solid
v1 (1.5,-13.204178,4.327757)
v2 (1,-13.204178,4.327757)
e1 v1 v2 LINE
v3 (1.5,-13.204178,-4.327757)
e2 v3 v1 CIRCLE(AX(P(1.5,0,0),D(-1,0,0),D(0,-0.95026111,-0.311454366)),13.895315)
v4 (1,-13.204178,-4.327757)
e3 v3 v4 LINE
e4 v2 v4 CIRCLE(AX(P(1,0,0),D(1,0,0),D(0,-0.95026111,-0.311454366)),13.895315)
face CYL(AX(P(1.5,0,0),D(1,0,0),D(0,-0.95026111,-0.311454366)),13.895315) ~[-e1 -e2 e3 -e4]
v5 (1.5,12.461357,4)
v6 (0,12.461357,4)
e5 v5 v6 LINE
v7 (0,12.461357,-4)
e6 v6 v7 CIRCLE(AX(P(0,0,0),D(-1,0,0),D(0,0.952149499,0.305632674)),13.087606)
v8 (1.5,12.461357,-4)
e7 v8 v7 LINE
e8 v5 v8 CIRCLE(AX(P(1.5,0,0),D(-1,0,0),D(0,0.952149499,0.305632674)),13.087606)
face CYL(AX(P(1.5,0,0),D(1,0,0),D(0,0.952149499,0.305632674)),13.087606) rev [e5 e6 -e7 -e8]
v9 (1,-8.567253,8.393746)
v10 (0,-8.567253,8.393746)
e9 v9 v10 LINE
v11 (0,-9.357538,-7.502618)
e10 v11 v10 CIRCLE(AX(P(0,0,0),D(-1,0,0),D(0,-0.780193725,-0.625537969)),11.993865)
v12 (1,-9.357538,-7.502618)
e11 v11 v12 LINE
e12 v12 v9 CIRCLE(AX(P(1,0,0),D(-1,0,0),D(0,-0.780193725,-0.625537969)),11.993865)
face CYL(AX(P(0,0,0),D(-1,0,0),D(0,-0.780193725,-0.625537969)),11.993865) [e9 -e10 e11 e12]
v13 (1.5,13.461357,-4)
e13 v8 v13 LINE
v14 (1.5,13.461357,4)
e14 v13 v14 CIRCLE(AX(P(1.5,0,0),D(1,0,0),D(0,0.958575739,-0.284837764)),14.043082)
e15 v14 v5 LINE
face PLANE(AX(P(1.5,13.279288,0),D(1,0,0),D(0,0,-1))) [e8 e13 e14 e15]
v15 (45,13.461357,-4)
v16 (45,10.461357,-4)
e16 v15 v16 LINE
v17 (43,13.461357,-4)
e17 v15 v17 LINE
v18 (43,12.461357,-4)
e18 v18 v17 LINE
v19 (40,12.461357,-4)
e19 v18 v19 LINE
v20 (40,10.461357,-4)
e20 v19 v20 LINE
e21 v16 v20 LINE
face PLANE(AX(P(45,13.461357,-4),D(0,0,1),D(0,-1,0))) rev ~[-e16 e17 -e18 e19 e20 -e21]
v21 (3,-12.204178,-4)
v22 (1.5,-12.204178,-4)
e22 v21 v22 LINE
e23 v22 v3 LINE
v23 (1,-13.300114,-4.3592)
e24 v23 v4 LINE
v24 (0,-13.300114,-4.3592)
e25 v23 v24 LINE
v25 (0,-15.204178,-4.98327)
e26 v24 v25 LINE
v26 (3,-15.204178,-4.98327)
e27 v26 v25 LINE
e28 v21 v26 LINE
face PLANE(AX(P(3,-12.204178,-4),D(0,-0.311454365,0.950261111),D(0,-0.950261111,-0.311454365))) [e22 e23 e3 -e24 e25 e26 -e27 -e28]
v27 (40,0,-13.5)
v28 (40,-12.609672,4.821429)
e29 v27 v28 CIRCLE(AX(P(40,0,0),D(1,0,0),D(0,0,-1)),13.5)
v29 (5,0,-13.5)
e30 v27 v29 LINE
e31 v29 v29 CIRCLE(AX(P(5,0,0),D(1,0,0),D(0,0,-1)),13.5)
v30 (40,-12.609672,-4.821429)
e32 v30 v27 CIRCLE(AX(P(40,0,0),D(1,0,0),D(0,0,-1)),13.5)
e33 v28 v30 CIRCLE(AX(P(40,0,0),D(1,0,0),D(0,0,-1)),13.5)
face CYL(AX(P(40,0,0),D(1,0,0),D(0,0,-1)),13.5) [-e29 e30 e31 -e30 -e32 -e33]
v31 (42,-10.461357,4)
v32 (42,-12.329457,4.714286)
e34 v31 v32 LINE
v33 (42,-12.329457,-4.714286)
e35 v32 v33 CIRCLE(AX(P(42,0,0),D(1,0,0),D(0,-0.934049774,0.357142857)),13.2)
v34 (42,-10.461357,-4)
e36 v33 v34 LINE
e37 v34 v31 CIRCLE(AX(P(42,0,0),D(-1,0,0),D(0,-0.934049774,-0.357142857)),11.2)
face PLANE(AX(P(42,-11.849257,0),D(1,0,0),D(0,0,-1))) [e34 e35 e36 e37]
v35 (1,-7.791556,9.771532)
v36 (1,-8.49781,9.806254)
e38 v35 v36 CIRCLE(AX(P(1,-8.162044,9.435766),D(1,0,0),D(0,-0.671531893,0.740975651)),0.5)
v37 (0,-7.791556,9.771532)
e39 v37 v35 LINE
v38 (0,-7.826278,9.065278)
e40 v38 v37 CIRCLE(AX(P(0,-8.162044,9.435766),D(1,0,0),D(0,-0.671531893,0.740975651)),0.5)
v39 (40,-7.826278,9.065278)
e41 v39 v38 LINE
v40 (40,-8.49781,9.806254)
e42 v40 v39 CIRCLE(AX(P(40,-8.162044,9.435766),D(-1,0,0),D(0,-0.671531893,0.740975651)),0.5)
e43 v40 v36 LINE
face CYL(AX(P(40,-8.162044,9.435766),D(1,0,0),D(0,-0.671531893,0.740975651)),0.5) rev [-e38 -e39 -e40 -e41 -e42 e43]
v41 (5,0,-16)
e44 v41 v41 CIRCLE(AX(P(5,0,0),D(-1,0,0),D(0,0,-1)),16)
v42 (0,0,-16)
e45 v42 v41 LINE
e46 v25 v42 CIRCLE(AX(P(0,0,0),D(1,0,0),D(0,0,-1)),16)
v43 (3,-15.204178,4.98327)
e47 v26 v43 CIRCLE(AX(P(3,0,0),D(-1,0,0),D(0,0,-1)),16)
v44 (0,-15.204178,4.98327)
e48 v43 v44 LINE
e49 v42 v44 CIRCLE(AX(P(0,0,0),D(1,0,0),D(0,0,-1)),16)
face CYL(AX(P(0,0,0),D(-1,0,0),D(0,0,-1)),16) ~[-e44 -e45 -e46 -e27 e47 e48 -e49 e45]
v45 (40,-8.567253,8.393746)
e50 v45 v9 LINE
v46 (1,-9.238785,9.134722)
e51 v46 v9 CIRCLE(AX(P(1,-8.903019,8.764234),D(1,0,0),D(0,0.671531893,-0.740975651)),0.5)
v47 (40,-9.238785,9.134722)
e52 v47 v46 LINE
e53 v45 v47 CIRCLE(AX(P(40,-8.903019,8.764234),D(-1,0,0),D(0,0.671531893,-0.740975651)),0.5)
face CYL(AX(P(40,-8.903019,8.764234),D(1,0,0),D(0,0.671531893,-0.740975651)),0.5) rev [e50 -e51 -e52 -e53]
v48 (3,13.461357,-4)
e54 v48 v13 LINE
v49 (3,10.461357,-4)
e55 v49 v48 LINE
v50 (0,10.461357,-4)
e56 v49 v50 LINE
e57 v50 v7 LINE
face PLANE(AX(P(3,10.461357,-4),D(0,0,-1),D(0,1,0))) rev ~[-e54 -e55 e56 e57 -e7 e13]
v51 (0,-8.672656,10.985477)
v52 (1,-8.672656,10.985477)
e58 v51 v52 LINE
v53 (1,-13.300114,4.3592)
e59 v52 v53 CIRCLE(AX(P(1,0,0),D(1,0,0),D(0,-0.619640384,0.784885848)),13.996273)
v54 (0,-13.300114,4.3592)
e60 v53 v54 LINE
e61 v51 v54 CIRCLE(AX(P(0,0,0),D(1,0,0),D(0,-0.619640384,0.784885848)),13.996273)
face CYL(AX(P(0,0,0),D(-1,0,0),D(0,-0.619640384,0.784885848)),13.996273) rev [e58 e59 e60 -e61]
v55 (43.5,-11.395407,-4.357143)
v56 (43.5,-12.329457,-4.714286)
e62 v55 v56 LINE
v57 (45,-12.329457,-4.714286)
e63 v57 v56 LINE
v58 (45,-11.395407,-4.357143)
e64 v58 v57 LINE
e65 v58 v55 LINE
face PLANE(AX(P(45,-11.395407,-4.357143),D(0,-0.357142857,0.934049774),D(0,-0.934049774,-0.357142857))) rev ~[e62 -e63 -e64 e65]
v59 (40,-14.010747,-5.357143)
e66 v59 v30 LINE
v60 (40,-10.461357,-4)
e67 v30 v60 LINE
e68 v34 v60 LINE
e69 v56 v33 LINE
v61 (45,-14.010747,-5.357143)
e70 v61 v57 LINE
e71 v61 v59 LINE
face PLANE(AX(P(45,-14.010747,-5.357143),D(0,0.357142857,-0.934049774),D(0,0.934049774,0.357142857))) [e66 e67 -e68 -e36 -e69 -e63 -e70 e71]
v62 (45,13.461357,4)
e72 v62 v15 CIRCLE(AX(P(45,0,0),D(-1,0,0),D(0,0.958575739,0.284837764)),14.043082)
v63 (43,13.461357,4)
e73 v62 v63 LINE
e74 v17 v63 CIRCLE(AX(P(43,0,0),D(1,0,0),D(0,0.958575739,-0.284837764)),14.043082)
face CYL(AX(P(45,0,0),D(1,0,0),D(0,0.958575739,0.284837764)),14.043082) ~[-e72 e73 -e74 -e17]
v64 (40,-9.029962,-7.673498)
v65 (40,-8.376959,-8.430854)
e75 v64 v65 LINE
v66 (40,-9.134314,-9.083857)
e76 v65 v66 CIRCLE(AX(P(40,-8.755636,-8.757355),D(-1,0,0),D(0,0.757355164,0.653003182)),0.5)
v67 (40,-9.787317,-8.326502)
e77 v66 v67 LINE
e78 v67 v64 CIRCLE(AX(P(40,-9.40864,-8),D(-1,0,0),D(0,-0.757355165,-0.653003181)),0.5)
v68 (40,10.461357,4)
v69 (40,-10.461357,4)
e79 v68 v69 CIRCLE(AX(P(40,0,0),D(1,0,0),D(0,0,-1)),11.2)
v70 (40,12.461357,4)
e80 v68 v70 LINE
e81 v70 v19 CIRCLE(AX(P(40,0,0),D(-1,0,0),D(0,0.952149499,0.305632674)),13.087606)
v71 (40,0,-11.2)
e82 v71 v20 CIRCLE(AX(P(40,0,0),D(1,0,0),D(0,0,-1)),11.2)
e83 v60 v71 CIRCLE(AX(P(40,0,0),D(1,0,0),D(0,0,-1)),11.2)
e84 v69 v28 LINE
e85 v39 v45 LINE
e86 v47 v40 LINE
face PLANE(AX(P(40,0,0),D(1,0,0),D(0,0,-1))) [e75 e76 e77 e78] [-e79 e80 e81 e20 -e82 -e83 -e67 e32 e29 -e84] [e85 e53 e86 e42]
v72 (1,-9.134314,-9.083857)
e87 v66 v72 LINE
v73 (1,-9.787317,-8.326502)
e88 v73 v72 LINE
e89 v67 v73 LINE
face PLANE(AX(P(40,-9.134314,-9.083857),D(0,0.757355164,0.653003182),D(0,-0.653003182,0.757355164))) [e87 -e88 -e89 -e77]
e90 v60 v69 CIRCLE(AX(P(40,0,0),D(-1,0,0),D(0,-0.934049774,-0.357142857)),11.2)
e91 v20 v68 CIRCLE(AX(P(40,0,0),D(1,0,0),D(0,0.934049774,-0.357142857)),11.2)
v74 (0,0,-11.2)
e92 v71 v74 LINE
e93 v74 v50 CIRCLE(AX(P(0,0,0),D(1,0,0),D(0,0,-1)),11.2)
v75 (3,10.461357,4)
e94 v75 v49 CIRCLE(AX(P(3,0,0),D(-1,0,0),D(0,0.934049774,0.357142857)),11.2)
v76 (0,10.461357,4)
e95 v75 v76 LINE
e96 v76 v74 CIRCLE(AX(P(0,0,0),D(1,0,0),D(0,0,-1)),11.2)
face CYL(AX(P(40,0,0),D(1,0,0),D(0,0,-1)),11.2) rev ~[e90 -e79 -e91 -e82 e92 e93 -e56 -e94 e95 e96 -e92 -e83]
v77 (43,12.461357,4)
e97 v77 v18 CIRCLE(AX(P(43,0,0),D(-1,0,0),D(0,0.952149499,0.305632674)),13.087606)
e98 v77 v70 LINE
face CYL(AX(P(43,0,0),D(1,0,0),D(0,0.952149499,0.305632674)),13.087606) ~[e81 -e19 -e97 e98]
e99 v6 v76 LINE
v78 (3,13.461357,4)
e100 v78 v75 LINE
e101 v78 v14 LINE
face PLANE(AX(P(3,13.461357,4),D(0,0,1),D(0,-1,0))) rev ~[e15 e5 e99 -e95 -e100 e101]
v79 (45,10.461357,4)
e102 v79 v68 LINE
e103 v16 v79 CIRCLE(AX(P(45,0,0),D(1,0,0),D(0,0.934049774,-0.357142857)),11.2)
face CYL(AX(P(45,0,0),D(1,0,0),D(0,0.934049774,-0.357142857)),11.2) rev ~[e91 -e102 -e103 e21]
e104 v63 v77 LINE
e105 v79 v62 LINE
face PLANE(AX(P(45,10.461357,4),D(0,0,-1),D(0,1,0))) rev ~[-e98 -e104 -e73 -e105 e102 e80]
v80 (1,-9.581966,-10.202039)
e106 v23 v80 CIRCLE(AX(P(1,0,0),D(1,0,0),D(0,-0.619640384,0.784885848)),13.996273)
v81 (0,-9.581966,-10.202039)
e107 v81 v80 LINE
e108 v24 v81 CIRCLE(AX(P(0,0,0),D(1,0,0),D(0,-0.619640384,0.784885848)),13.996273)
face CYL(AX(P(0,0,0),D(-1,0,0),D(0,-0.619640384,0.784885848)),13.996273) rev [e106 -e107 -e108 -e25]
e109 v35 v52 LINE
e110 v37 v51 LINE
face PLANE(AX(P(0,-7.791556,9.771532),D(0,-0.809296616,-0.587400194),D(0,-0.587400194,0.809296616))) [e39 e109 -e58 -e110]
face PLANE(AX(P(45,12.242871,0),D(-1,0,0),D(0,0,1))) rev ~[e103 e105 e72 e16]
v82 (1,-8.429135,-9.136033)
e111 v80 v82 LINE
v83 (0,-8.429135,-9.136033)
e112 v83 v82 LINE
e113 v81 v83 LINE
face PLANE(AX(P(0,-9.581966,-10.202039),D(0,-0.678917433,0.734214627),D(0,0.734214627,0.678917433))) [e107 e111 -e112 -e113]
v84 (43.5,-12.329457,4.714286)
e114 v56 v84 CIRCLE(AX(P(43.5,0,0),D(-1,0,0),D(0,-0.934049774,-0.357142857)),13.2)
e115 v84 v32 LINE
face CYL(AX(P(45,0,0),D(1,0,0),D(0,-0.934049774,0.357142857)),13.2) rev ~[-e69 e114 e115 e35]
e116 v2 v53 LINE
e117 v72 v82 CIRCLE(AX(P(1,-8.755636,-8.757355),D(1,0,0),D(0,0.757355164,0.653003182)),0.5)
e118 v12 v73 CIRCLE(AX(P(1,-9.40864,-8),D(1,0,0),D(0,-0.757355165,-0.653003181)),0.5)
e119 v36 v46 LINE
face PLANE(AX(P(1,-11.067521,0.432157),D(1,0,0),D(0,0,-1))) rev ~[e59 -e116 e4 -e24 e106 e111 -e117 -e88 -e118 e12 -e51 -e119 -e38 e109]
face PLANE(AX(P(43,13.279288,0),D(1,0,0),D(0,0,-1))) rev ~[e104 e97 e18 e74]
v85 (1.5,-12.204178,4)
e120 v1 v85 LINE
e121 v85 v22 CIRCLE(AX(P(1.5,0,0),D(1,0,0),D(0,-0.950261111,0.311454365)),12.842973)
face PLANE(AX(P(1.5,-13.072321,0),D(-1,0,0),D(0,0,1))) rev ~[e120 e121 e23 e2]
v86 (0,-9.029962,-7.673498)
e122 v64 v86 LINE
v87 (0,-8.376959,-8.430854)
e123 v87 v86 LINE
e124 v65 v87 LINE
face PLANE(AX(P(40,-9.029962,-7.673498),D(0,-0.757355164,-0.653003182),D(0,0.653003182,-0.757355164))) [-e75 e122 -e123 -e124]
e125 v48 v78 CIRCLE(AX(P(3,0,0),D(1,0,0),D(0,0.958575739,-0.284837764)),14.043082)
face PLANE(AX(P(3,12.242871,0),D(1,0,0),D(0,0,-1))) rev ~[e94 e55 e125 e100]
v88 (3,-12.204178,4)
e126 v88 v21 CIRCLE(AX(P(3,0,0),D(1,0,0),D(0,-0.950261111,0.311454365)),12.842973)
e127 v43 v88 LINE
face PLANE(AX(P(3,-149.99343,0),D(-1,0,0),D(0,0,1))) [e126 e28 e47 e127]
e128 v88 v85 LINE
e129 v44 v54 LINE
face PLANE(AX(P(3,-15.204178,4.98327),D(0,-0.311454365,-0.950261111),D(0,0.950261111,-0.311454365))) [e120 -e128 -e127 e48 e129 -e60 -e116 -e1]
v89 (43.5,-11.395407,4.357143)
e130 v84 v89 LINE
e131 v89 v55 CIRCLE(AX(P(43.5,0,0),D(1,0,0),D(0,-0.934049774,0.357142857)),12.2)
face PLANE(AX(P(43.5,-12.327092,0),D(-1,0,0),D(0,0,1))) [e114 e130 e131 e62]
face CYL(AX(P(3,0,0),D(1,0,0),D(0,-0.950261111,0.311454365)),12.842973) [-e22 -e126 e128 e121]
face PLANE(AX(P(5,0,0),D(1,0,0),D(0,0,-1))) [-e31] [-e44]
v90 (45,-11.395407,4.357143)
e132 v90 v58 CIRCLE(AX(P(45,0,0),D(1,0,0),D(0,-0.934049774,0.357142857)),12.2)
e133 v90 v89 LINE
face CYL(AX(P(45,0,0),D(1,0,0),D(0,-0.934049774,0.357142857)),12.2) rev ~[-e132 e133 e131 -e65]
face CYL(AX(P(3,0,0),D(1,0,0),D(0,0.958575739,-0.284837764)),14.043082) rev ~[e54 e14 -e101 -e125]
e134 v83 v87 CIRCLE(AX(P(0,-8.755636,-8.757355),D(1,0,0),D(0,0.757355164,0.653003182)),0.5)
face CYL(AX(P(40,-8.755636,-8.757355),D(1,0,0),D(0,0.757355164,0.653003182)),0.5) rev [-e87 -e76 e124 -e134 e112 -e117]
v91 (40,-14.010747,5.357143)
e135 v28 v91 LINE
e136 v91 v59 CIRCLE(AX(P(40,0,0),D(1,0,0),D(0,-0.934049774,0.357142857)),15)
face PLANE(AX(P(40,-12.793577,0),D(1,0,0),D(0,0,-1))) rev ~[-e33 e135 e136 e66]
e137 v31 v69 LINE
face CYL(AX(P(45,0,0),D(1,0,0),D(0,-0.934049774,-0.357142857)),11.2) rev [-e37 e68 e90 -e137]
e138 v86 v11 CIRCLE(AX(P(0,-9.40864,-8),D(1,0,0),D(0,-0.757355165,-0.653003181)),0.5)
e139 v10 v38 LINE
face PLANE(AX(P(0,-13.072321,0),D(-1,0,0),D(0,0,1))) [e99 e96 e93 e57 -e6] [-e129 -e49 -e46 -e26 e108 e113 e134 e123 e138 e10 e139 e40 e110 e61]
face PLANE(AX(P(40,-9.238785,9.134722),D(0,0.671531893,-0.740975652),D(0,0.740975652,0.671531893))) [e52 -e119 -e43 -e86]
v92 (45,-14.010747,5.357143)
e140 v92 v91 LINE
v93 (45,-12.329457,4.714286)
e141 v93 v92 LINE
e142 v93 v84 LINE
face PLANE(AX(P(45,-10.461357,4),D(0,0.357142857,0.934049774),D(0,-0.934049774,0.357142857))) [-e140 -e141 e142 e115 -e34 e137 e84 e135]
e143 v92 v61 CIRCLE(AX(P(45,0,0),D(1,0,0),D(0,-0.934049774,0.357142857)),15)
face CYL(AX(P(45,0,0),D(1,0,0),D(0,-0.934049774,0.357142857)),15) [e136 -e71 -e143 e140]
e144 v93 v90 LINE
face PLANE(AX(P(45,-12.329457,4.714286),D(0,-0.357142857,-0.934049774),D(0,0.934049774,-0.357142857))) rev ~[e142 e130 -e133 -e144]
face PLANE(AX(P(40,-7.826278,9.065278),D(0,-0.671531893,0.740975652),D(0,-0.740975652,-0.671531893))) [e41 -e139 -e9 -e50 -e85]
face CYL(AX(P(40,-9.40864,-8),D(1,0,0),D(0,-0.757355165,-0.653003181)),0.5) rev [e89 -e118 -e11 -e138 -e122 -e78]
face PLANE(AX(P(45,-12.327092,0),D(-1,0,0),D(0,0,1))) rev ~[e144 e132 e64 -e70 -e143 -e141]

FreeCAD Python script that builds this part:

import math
import FreeCAD as App
import Part
import Sketcher
from FreeCAD import Vector


def add_polygon(sketch, points):
    """Adds a closed chain of lines whose ends are joined by coincident constraints."""
    first, n = sketch.GeometryCount, len(points)
    for a, b in zip(points, points[1:] + points[:1]):
        sketch.addGeometry(Part.LineSegment(App.Vector(*a, 0), App.Vector(*b, 0)), False)
    for i in range(n):
        sketch.addConstraint(Sketcher.Constraint("Coincident", first + i, 2, first + (i + 1) % n, 1))

doc = App.newDocument("Part")
params = doc.addObject("Spreadsheet::Sheet", "Params")
for row, (alias, value) in enumerate([
    ("sketch1_diameter", "32 mm"),
    ("pad1_length", "40 mm"),
    ("sketch2_diameter", "22.4 mm"),
    ("sketch3_diameter", "27 mm"),
    ("sketch3_width", "46.08 mm"),
    ("pocket2_length", "35 mm"),
    ("sketch4_radius", "11.2 mm"),
    ("sketch4_width", "3 mm"),
    ("pocket3_length", "3 mm"),
    ("pocket4_length", "46.956501 mm"),
    ("pocket4_length2", "3 mm"),
    ("sketch6_width", "1 mm"),
    ("pad2_length", "1.5 mm"),
    ("sketch7_radius", "15 mm"),
    ("sketch7_radius2", "11.2 mm"),
    ("sketch7_width", "3 mm"),
    ("pad3_length", "5 mm"),
    ("sketch8_width", "1 mm"),
    ("pocket5_length", "3 mm"),
    ("sketch9_radius", "13.2 mm"),
    ("sketch9_radius2", "11.2 mm"),
    ("pocket6_length", "3 mm"),
    ("sketch10_radius", "13.2 mm"),
    ("sketch10_radius2", "12.2 mm"),
    ("pad4_length", "1.5 mm"),
    ("sketch11_radius", "0.5 mm"),
    ("sketch11_length", "1 mm"),
    ("sketch12_length", "1.5 mm"),
    ("pocket8_length", "1 mm"),
], start=1):
    params.set(f"A{row}", alias)
    params.set(f"B{row}", "=" + value)
    params.setAlias(f"B{row}", alias)

body = doc.addObject("PartDesign::Body", "Body")

sketch1 = body.newObject("Sketcher::SketchObject", "Sketch")
sketch1.AttachmentSupport = (doc.getObject("YZ_Plane"), [""])
sketch1.MapMode = "FlatFace"
sketch1.addGeometry(Part.Circle(Vector(0, 0, 0), Vector(0, 0, 1), 16), False)
sketch1.addConstraint(Sketcher.Constraint("Coincident", 0, 3, -1, 1))
sketch1.addConstraint(Sketcher.Constraint("Diameter", 0, 32.0))
sketch1.setExpression("Constraints[1]", "Params.sketch1_diameter")
pad1 = body.newObject("PartDesign::Pad", "Pad")
pad1.Profile = sketch1
pad1.setExpression("Length", "Params.pad1_length")

sketch2 = body.newObject("Sketcher::SketchObject", "Sketch001")
sketch2.AttachmentSupport = (doc.getObject("YZ_Plane"), [""])
sketch2.MapMode = "FlatFace"
sketch2.AttachmentOffset = App.Placement(Vector(0, 0, 40), App.Rotation())
sketch2.addGeometry(Part.Circle(Vector(0, 0, 0), Vector(0, 0, 1), 11), False)
sketch2.addConstraint(Sketcher.Constraint("Coincident", 0, 3, -1, 1))
sketch2.addConstraint(Sketcher.Constraint("Diameter", 0, 22.4))
sketch2.setExpression("Constraints[1]", "Params.sketch2_diameter")
pocket1 = body.newObject("PartDesign::Pocket", "Pocket")
pocket1.Profile = sketch2
pocket1.Type = "ThroughAll"

sketch3 = body.newObject("Sketcher::SketchObject", "Sketch002")
sketch3.AttachmentSupport = (doc.getObject("YZ_Plane"), [""])
sketch3.MapMode = "FlatFace"
sketch3.AttachmentOffset = App.Placement(Vector(0, 0, 40), App.Rotation())
add_polygon(sketch3, [(23, 23), (-23, 23), (-23, -23), (23, -23)])
sketch3.addGeometry(Part.Circle(Vector(0, 0, 0), Vector(0, 0, 1), 14), False)
sketch3.addConstraint(Sketcher.Constraint("Horizontal", 0))
sketch3.addConstraint(Sketcher.Constraint("Vertical", 1))
sketch3.addConstraint(Sketcher.Constraint("Horizontal", 2))
sketch3.addConstraint(Sketcher.Constraint("Vertical", 3))
sketch3.addConstraint(Sketcher.Constraint("Coincident", 4, 3, -1, 1))
sketch3.addConstraint(Sketcher.Constraint("Symmetric", 0, 2, 2, 2, -1, 1))
sketch3.addConstraint(Sketcher.Constraint("Equal", 2, 1))
sketch3.addConstraint(Sketcher.Constraint("Diameter", 4, 27.0))
sketch3.addConstraint(Sketcher.Constraint("DistanceX", 0, 2, 0, 1, 46.08))
sketch3.setExpression("Constraints[11]", "Params.sketch3_diameter")
sketch3.setExpression("Constraints[12]", "Params.sketch3_width")
pocket2 = body.newObject("PartDesign::Pocket", "Pocket001")
pocket2.Profile = sketch3
pocket2.setExpression("Length", "Params.pocket2_length")

sketch4 = body.newObject("Sketcher::SketchObject", "Sketch003")
sketch4.AttachmentSupport = (doc.getObject("YZ_Plane"), [""])
sketch4.MapMode = "FlatFace"
sketch4.AttachmentOffset = App.Placement(Vector(0, 0, 3), App.Rotation())
sketch4.addGeometry(Part.LineSegment(Vector(13.5, -4, 0), Vector(10.5, -4, 0)), False)
sketch4.addGeometry(Part.ArcOfCircle(Part.Circle(Vector(0, 0, 0), Vector(0, 0, 1), 11.2), math.radians(-21), math.radians(21)), False)
sketch4.addGeometry(Part.LineSegment(Vector(10.5, 4, 0), Vector(13.5, 4, 0)), False)
sketch4.addGeometry(Part.ArcOfCircle(Part.Circle(Vector(0, 0, 0), Vector(0, 0, 1), 14), math.radians(-17), math.radians(17)), False)
sketch4.addConstraint(Sketcher.Constraint("Coincident", 0, 2, 1, 1))
sketch4.addConstraint(Sketcher.Constraint("Coincident", 1, 2, 2, 1))
sketch4.addConstraint(Sketcher.Constraint("Coincident", 2, 2, 3, 2))
sketch4.addConstraint(Sketcher.Constraint("Coincident", 3, 1, 0, 1))
sketch4.addConstraint(Sketcher.Constraint("Horizontal", 0))
sketch4.addConstraint(Sketcher.Constraint("Horizontal", 2))
sketch4.addConstraint(Sketcher.Constraint("Coincident", 1, 3, -1, 1))
sketch4.addConstraint(Sketcher.Constraint("Coincident", 3, 3, -1, 1))
sketch4.addConstraint(Sketcher.Constraint("Vertical", 0, 2, 1, 2))
sketch4.addConstraint(Sketcher.Constraint("Radius", 1, 11.2))
sketch4.addConstraint(Sketcher.Constraint("DistanceX", 0, 2, 0, 1, 3.0))
sketch4.addConstraint(Sketcher.Constraint("DistanceY", 0, 2, -1, 1, 4.0))
sketch4.setExpression("Constraints[9]", "Params.sketch4_radius")
sketch4.setExpression("Constraints[10]", "Params.sketch4_width")
pocket3 = body.newObject("PartDesign::Pocket", "Pocket002")
pocket3.Profile = sketch4
pocket3.setExpression("Length", "Params.pocket3_length")

sketch5 = body.newObject("Sketcher::SketchObject", "Sketch004")
sketch5.AttachmentSupport = (doc.getObject("YZ_Plane"), [""])
sketch5.MapMode = "FlatFace"
sketch5.addGeometry(Part.LineSegment(Vector(-96.2, 31.5, 0), Vector(-15.2, 5, 0)), False)
sketch5.addGeometry(Part.LineSegment(Vector(-15.2, 5, 0), Vector(-12.2, 4, 0)), False)
sketch5.addGeometry(Part.ArcOfCircle(Part.Circle(Vector(0, 0, 0), Vector(0, 0, 1), 12.8), math.radians(162), math.radians(198)), False)
sketch5.addGeometry(Part.LineSegment(Vector(-12.2, -4, 0), Vector(-15.2, -5, 0)), False)
sketch5.addGeometry(Part.LineSegment(Vector(-15.2, -5, 0), Vector(-96.2, -31.5, 0)), False)
sketch5.addGeometry(Part.LineSegment(Vector(-96.2, -31.5, 0), Vector(-266.6, -31.5, 0)), False)
sketch5.addGeometry(Part.LineSegment(Vector(-266.6, -31.5, 0), Vector(-266.6, 31.5, 0)), False)
sketch5.addGeometry(Part.LineSegment(Vector(-266.6, 31.5, 0), Vector(-96.2, 31.5, 0)), False)
sketch5.addConstraint(Sketcher.Constraint("Coincident", 0, 2, 1, 1))
sketch5.addConstraint(Sketcher.Constraint("Coincident", 1, 2, 2, 1))
sketch5.addConstraint(Sketcher.Constraint("Coincident", 2, 2, 3, 1))
sketch5.addConstraint(Sketcher.Constraint("Coincident", 3, 2, 4, 1))
sketch5.addConstraint(Sketcher.Constraint("Coincident", 4, 2, 5, 1))
sketch5.addConstraint(Sketcher.Constraint("Coincident", 5, 2, 6, 1))
sketch5.addConstraint(Sketcher.Constraint("Coincident", 6, 2, 7, 1))
sketch5.addConstraint(Sketcher.Constraint("Coincident", 7, 2, 0, 1))
sketch5.addConstraint(Sketcher.Constraint("Horizontal", 5))
sketch5.addConstraint(Sketcher.Constraint("Vertical", 6))
sketch5.addConstraint(Sketcher.Constraint("Horizontal", 7))
sketch5.addConstraint(Sketcher.Constraint("Coincident", 2, 3, -1, 1))
sketch5.addConstraint(Sketcher.Constraint("Symmetric", 0, 2, 3, 2, -1))
sketch5.addConstraint(Sketcher.Constraint("Symmetric", 4, 2, 7, 2, -1))
sketch5.addConstraint(Sketcher.Constraint("Parallel", 0, 1))
sketch5.addConstraint(Sketcher.Constraint("Parallel", 3, 4))
sketch5.addConstraint(Sketcher.Constraint("DistanceY", -1, 1, 1, 2, 4.0))
sketch5.addConstraint(Sketcher.Constraint("DistanceX", 0, 2, 1, 2, 3.0))
sketch5.addConstraint(Sketcher.Constraint("Radius", 2, 12.842973))
sketch5.addConstraint(Sketcher.Constraint("DistanceY", 6, 1, 6, 2, 63.042312))
sketch5.addConstraint(Sketcher.Constraint("Distance", 0, 85.206338))
sketch5.addConstraint(Sketcher.Constraint("DistanceX", 5, 2, 5, 1, 170.412676))
pocket4 = body.newObject("PartDesign::Pocket", "Pocket003")
pocket4.Profile = sketch5
pocket4.Type = "TwoLengths"
pocket4.setExpression("Length", "Params.pocket4_length")
pocket4.setExpression("Length2", "Params.pocket4_length2")

sketch6 = body.newObject("Sketcher::SketchObject", "Sketch005")
sketch6.AttachmentSupport = (doc.getObject("YZ_Plane"), [""])
sketch6.MapMode = "FlatFace"
sketch6.AttachmentOffset = App.Placement(Vector(0, 0, 1.5), App.Rotation())
sketch6.addGeometry(Part.LineSegment(Vector(-12.2, -4, 0), Vector(-13.2, -4.3, 0)), False)
sketch6.addGeometry(Part.ArcOfCircle(Part.Circle(Vector(0, 0, 0), Vector(0, 0, 1), 13.9), math.radians(162), math.radians(198)), False)
sketch6.addGeometry(Part.LineSegment(Vector(-13.2, 4.3, 0), Vector(-12.2, 4, 0)), False)
sketch6.addGeometry(Part.ArcOfCircle(Part.Circle(Vector(0, 0, 0), Vector(0, 0, 1), 12.8), math.radians(162), math.radians(198)), False)
sketch6.addGeometry(Part.LineSegment(Vector(13.5, -4, 0), Vector(12.5, -4, 0)), False)
sketch6.addGeometry(Part.ArcOfCircle(Part.Circle(Vector(0, 0, 0), Vector(0, 0, 1), 13.1), math.radians(-18), math.radians(18)), False)
sketch6.addGeometry(Part.LineSegment(Vector(12.5, 4, 0), Vector(13.5, 4, 0)), False)
sketch6.addGeometry(Part.ArcOfCircle(Part.Circle(Vector(0, 0, 0), Vector(0, 0, 1), 14), math.radians(-17), math.radians(17)), False)
sketch6.addConstraint(Sketcher.Constraint("Coincident", 0, 2, 1, 2))
sketch6.addConstraint(Sketcher.Constraint("Coincident", 1, 1, 2, 1))
sketch6.addConstraint(Sketcher.Constraint("Coincident", 2, 2, 3, 1))
sketch6.addConstraint(Sketcher.Constraint("Coincident", 3, 2, 0, 1))
sketch6.addConstraint(Sketcher.Constraint("Coincident", 4, 2, 5, 1))
sketch6.addConstraint(Sketcher.Constraint("Coincident", 5, 2, 6, 1))
sketch6.addConstraint(Sketcher.Constraint("Coincident", 6, 2, 7, 2))
sketch6.addConstraint(Sketcher.Constraint("Coincident", 7, 1, 4, 1))
sketch6.addConstraint(Sketcher.Constraint("Horizontal", 4))
sketch6.addConstraint(Sketcher.Constraint("Horizontal", 6))
sketch6.addConstraint(Sketcher.Constraint("Coincident", 1, 3, -1, 1))
sketch6.addConstraint(Sketcher.Constraint("Coincident", 3, 3, -1, 1))
sketch6.addConstraint(Sketcher.Constraint("Coincident", 5, 3, -1, 1))
sketch6.addConstraint(Sketcher.Constraint("Coincident", 7, 3, -1, 1))
sketch6.addConstraint(Sketcher.Constraint("Horizontal", 3, 2, 4, 2))
sketch6.addConstraint(Sketcher.Constraint("Horizontal", 2, 2, 5, 2))
sketch6.addConstraint(Sketcher.Constraint("Vertical", 0, 2, 1, 1))
sketch6.addConstraint(Sketcher.Constraint("Vertical", 2, 2, 3, 2))
sketch6.addConstraint(Sketcher.Constraint("DistanceX", 4, 2, 4, 1, 1.0))
sketch6.addConstraint(Sketcher.Constraint("DistanceY", -1, 1, 2, 2, 4.0))
sketch6.addConstraint(Sketcher.Constraint("DistanceX", 1, 1, 2, 2, 1.0))
sketch6.addConstraint(Sketcher.Constraint("Radius", 7, 14.043082))
sketch6.addConstraint(Sketcher.Constraint("Radius", 1, 13.895315))
sketch6.addConstraint(Sketcher.Constraint("Radius", 3, 12.842973))
sketch6.setExpression("Constraints[18]", "Params.sketch6_width")
pad2 = body.newObject("PartDesign::Pad", "Pad001")
pad2.Profile = sketch6
pad2.setExpression("Length", "Params.pad2_length")
pad2.Reversed = True

sketch7 = body.newObject("Sketcher::SketchObject", "Sketch006")
sketch7.AttachmentSupport = (doc.getObject("YZ_Plane"), [""])
sketch7.MapMode = "FlatFace"
sketch7.AttachmentOffset = App.Placement(Vector(0, 0, 45), App.Rotation())
sketch7.addGeometry(Part.LineSegment(Vector(13.5, 4, 0), Vector(10.5, 4, 0)), False)
sketch7.addGeometry(Part.ArcOfCircle(Part.Circle(Vector(0, 0, 0), Vector(0, 0, 1), 11.2), math.radians(-21), math.radians(21)), False)
sketch7.addGeometry(Part.LineSegment(Vector(10.5, -4, 0), Vector(13.5, -4, 0)), False)
sketch7.addGeometry(Part.ArcOfCircle(Part.Circle(Vector(0, 0, 0), Vector(0, 0, 1), 14), math.radians(-17), math.radians(17)), False)
sketch7.addGeometry(Part.LineSegment(Vector(-10.5, 4, 0), Vector(-14, 5.4, 0)), False)
sketch7.addGeometry(Part.ArcOfCircle(Part.Circle(Vector(0, 0, 0), Vector(0, 0, 1), 15), math.radians(159), math.radians(201)), False)
sketch7.addGeometry(Part.LineSegment(Vector(-14, -5.4, 0), Vector(-10.5, -4, 0)), False)
sketch7.addGeometry(Part.ArcOfCircle(Part.Circle(Vector(0, 0, 0), Vector(0, 0, 1), 11.2), math.radians(159), math.radians(201)), False)
sketch7.addConstraint(Sketcher.Constraint("Coincident", 0, 2, 1, 2))
sketch7.addConstraint(Sketcher.Constraint("Coincident", 1, 1, 2, 1))
sketch7.addConstraint(Sketcher.Constraint("Coincident", 2, 2, 3, 1))
sketch7.addConstraint(Sketcher.Constraint("Coincident", 3, 2, 0, 1))
sketch7.addConstraint(Sketcher.Constraint("Coincident", 4, 2, 5, 1))
sketch7.addConstraint(Sketcher.Constraint("Coincident", 5, 2, 6, 1))
sketch7.addConstraint(Sketcher.Constraint("Coincident", 6, 2, 7, 2))
sketch7.addConstraint(Sketcher.Constraint("Coincident", 7, 1, 4, 1))
sketch7.addConstraint(Sketcher.Constraint("Horizontal", 0))
sketch7.addConstraint(Sketcher.Constraint("Horizontal", 2))
sketch7.addConstraint(Sketcher.Constraint("Coincident", 1, 3, -1, 1))
sketch7.addConstraint(Sketcher.Constraint("Coincident", 3, 3, -1, 1))
sketch7.addConstraint(Sketcher.Constraint("Coincident", 5, 3, -1, 1))
sketch7.addConstraint(Sketcher.Constraint("Coincident", 7, 3, -1, 1))
sketch7.addConstraint(Sketcher.Constraint("Equal", 1, 7))
sketch7.addConstraint(Sketcher.Constraint("Horizontal", 2, 2, 6, 2))
sketch7.addConstraint(Sketcher.Constraint("Horizontal", 3, 2, 7, 1))
sketch7.addConstraint(Sketcher.Constraint("Vertical", 0, 2, 1, 1))
sketch7.addConstraint(Sketcher.Constraint("Vertical", 4, 2, 5, 2))
sketch7.addConstraint(Sketcher.Constraint("Radius", 5, 15.0))
sketch7.addConstraint(Sketcher.Constraint("Radius", 1, 11.2))
sketch7.addConstraint(Sketcher.Constraint("DistanceX", 0, 2, 0, 1, 3.0))
sketch7.addConstraint(Sketcher.Constraint("DistanceY", -1, 1, 0, 2, 4.0))
sketch7.addConstraint(Sketcher.Constraint("DistanceX", 5, 2, 6, 2, 3.549389))
sketch7.setExpression("Constraints[19]", "Params.sketch7_radius")
sketch7.setExpression("Constraints[20]", "Params.sketch7_radius2")
sketch7.setExpression("Constraints[21]", "Params.sketch7_width")
pad3 = body.newObject("PartDesign::Pad", "Pad002")
pad3.Profile = sketch7
pad3.setExpression("Length", "Params.pad3_length")
pad3.Reversed = True

sketch8 = body.newObject("Sketcher::SketchObject", "Sketch007")
sketch8.AttachmentSupport = (doc.getObject("YZ_Plane"), [""])
sketch8.MapMode = "FlatFace"
sketch8.AttachmentOffset = App.Placement(Vector(0, 0, 43), App.Rotation())
sketch8.addGeometry(Part.LineSegment(Vector(13.5, 4, 0), Vector(12.5, 4, 0)), False)
sketch8.addGeometry(Part.ArcOfCircle(Part.Circle(Vector(0, 0, 0), Vector(0, 0, 1), 13.1), math.radians(-18), math.radians(18)), False)
sketch8.addGeometry(Part.LineSegment(Vector(12.5, -4, 0), Vector(13.5, -4, 0)), False)
sketch8.addGeometry(Part.ArcOfCircle(Part.Circle(Vector(0, 0, 0), Vector(0, 0, 1), 14), math.radians(-17), math.radians(17)), False)
sketch8.addConstraint(Sketcher.Constraint("Coincident", 0, 2, 1, 2))
sketch8.addConstraint(Sketcher.Constraint("Coincident", 1, 1, 2, 1))
sketch8.addConstraint(Sketcher.Constraint("Coincident", 2, 2, 3, 1))
sketch8.addConstraint(Sketcher.Constraint("Coincident", 3, 2, 0, 1))
sketch8.addConstraint(Sketcher.Constraint("Horizontal", 0))
sketch8.addConstraint(Sketcher.Constraint("Horizontal", 2))
sketch8.addConstraint(Sketcher.Constraint("Coincident", 1, 3, -1, 1))
sketch8.addConstraint(Sketcher.Constraint("Coincident", 3, 3, -1, 1))
sketch8.addConstraint(Sketcher.Constraint("Vertical", 0, 2, 1, 1))
sketch8.addConstraint(Sketcher.Constraint("DistanceX", 0, 2, 0, 1, 1.0))
sketch8.addConstraint(Sketcher.Constraint("DistanceY", -1, 1, 0, 2, 4.0))
sketch8.addConstraint(Sketcher.Constraint("Radius", 3, 14.043082))
sketch8.setExpression("Constraints[9]", "Params.sketch8_width")
pocket5 = body.newObject("PartDesign::Pocket", "Pocket004")
pocket5.Profile = sketch8
pocket5.setExpression("Length", "Params.pocket5_length")

sketch9 = body.newObject("Sketcher::SketchObject", "Sketch008")
sketch9.AttachmentSupport = (doc.getObject("YZ_Plane"), [""])
sketch9.MapMode = "FlatFace"
sketch9.AttachmentOffset = App.Placement(Vector(0, 0, 45), App.Rotation())
sketch9.addGeometry(Part.LineSegment(Vector(-10.5, 4, 0), Vector(-12.3, 4.7, 0)), False)
sketch9.addGeometry(Part.ArcOfCircle(Part.Circle(Vector(0, 0, 0), Vector(0, 0, 1), 13.2), math.radians(159), math.radians(201)), False)
sketch9.addGeometry(Part.LineSegment(Vector(-12.3, -4.7, 0), Vector(-10.5, -4, 0)), False)
sketch9.addGeometry(Part.ArcOfCircle(Part.Circle(Vector(0, 0, 0), Vector(0, 0, 1), 11.2), math.radians(159), math.radians(201)), False)
sketch9.addConstraint(Sketcher.Constraint("Coincident", 0, 2, 1, 1))
sketch9.addConstraint(Sketcher.Constraint("Coincident", 1, 2, 2, 1))
sketch9.addConstraint(Sketcher.Constraint("Coincident", 2, 2, 3, 2))
sketch9.addConstraint(Sketcher.Constraint("Coincident", 3, 1, 0, 1))
sketch9.addConstraint(Sketcher.Constraint("Coincident", 1, 3, -1, 1))
sketch9.addConstraint(Sketcher.Constraint("Coincident", 3, 3, -1, 1))
sketch9.addConstraint(Sketcher.Constraint("Vertical", 0, 2, 1, 2))
sketch9.addConstraint(Sketcher.Constraint("Vertical", 2, 2, 3, 1))
sketch9.addConstraint(Sketcher.Constraint("Radius", 1, 13.2))
sketch9.addConstraint(Sketcher.Constraint("Radius", 3, 11.2))
sketch9.addConstraint(Sketcher.Constraint("DistanceY", 2, 2, -1, 1, 4.0))
sketch9.addConstraint(Sketcher.Constraint("DistanceX", 1, 2, 2, 2, 1.8681))
sketch9.setExpression("Constraints[8]", "Params.sketch9_radius")
sketch9.setExpression("Constraints[9]", "Params.sketch9_radius2")
pocket6 = body.newObject("PartDesign::Pocket", "Pocket005")
pocket6.Profile = sketch9
pocket6.setExpression("Length", "Params.pocket6_length")

sketch10 = body.newObject("Sketcher::SketchObject", "Sketch009")
sketch10.AttachmentSupport = (doc.getObject("YZ_Plane"), [""])
sketch10.MapMode = "FlatFace"
sketch10.AttachmentOffset = App.Placement(Vector(0, 0, 45), App.Rotation())
sketch10.addGeometry(Part.LineSegment(Vector(-11.4, 4.4, 0), Vector(-12.3, 4.7, 0)), False)
sketch10.addGeometry(Part.ArcOfCircle(Part.Circle(Vector(0, 0, 0), Vector(0, 0, 1), 13.2), math.radians(159), math.radians(201)), False)
sketch10.addGeometry(Part.LineSegment(Vector(-12.3, -4.7, 0), Vector(-11.4, -4.4, 0)), False)
sketch10.addGeometry(Part.ArcOfCircle(Part.Circle(Vector(0, 0, 0), Vector(0, 0, 1), 12.2), math.radians(159), math.radians(201)), False)
sketch10.addConstraint(Sketcher.Constraint("Coincident", 0, 2, 1, 1))
sketch10.addConstraint(Sketcher.Constraint("Coincident", 1, 2, 2, 1))
sketch10.addConstraint(Sketcher.Constraint("Coincident", 2, 2, 3, 2))
sketch10.addConstraint(Sketcher.Constraint("Coincident", 3, 1, 0, 1))
sketch10.addConstraint(Sketcher.Constraint("Coincident", 1, 3, -1, 1))
sketch10.addConstraint(Sketcher.Constraint("Coincident", 3, 3, -1, 1))
sketch10.addConstraint(Sketcher.Constraint("Vertical", 0, 2, 1, 2))
sketch10.addConstraint(Sketcher.Constraint("Vertical", 2, 2, 3, 1))
sketch10.addConstraint(Sketcher.Constraint("Radius", 1, 13.2))
sketch10.addConstraint(Sketcher.Constraint("Radius", 3, 12.2))
sketch10.addConstraint(Sketcher.Constraint("DistanceY", 1, 2, 0, 2, 9.428571))
sketch10.addConstraint(Sketcher.Constraint("DistanceX", 1, 2, 2, 2, 0.93405))
sketch10.setExpression("Constraints[8]", "Params.sketch10_radius")
sketch10.setExpression("Constraints[9]", "Params.sketch10_radius2")
pad4 = body.newObject("PartDesign::Pad", "Pad003")
pad4.Profile = sketch10
pad4.setExpression("Length", "Params.pad4_length")
pad4.Reversed = True

sketch11 = body.newObject("Sketcher::SketchObject", "Sketch010")
sketch11.AttachmentSupport = (doc.getObject("YZ_Plane"), [""])
sketch11.MapMode = "FlatFace"
sketch11.AttachmentOffset = App.Placement(Vector(0, 0, 40), App.Rotation())
sketch11.addGeometry(Part.LineSegment(Vector(-8.4, -8.4, 0), Vector(-9, -7.7, 0)), False)
sketch11.addGeometry(Part.ArcOfCircle(Part.Circle(Vector(-9.4, -8, 0), Vector(0, 0, 1), 0.5), math.radians(41), math.radians(221)), False)
sketch11.addGeometry(Part.LineSegment(Vector(-9.8, -8.3, 0), Vector(-9.1, -9.1, 0)), False)
sketch11.addGeometry(Part.ArcOfCircle(Part.Circle(Vector(-8.8, -8.8, 0), Vector(0, 0, 1), 0.5), math.radians(-139), math.radians(41)), False)
sketch11.addGeometry(Part.LineSegment(Vector(-8.5, 9.8, 0), Vector(-9.2, 9.1, 0)), False)
sketch11.addGeometry(Part.ArcOfCircle(Part.Circle(Vector(-8.9, 8.8, 0), Vector(0, 0, 1), 0.5), math.radians(132), math.radians(312)), False)
sketch11.addGeometry(Part.LineSegment(Vector(-8.6, 8.4, 0), Vector(-7.8, 9.1, 0)), False)
sketch11.addGeometry(Part.ArcOfCircle(Part.Circle(Vector(-8.2, 9.4, 0), Vector(0, 0, 1), 0.5), math.radians(-48), math.radians(132)), False)
sketch11.addConstraint(Sketcher.Constraint("Tangent", 0, 2, 1, 1))
sketch11.addConstraint(Sketcher.Constraint("Tangent", 1, 2, 2, 1))
sketch11.addConstraint(Sketcher.Constraint("Tangent", 2, 2, 3, 1))
sketch11.addConstraint(Sketcher.Constraint("Tangent", 3, 2, 0, 1))
sketch11.addConstraint(Sketcher.Constraint("Tangent", 4, 2, 5, 1))
sketch11.addConstraint(Sketcher.Constraint("Tangent", 5, 2, 6, 1))
sketch11.addConstraint(Sketcher.Constraint("Tangent", 6, 2, 7, 1))
sketch11.addConstraint(Sketcher.Constraint("Tangent", 7, 2, 4, 1))
sketch11.addConstraint(Sketcher.Constraint("Equal", 1, 3))
sketch11.addConstraint(Sketcher.Constraint("Equal", 3, 5))
sketch11.addConstraint(Sketcher.Constraint("Equal", 5, 7))
sketch11.addConstraint(Sketcher.Constraint("Equal", 2, 4))
sketch11.addConstraint(Sketcher.Constraint("Radius", 1, 0.5))
sketch11.addConstraint(Sketcher.Constraint("Distance", 0, 1.0))
sketch11.addConstraint(Sketcher.Constraint("DistanceY", 1, 3, -1, 1, 8.0))
sketch11.addConstraint(Sketcher.Constraint("DistanceY", 0, 2, -1, 1, 7.673498))
sketch11.addConstraint(Sketcher.Constraint("DistanceX", 1, 3, -1, 1, 9.40864))
sketch11.addConstraint(Sketcher.Constraint("DistanceX", 5, 3, -1, 1, 8.903019))
sketch11.addConstraint(Sketcher.Constraint("DistanceY", -1, 1, 4, 2, 9.134722))
sketch11.addConstraint(Sketcher.Constraint("DistanceY", -1, 1, 6, 2, 9.065278))
sketch11.setExpression("Constraints[12]", "Params.sketch11_radius")
sketch11.setExpression("Constraints[13]", "Params.sketch11_length")
pocket7 = body.newObject("PartDesign::Pocket", "Pocket006")
pocket7.Profile = sketch11
pocket7.Type = "ThroughAll"

sketch12 = body.newObject("Sketcher::SketchObject", "Sketch011")
sketch12.AttachmentSupport = (doc.getObject("YZ_Plane"), [""])
sketch12.MapMode = "FlatFace"
sketch12.addGeometry(Part.LineSegment(Vector(-8.7, 11, 0), Vector(-7.8, 9.8, 0)), False)
sketch12.addGeometry(Part.LineSegment(Vector(-7.8, 9.8, 0), Vector(-8.6, 8.4, 0)), False)
sketch12.addGeometry(Part.ArcOfCircle(Part.Circle(Vector(0, 0, 0), Vector(0, 0, 1), 12), math.radians(136), math.radians(219)), False)
sketch12.addGeometry(Part.LineSegment(Vector(-9.4, -7.5, 0), Vector(-8.4, -9.1, 0)), False)
sketch12.addGeometry(Part.LineSegment(Vector(-8.4, -9.1, 0), Vector(-9.6, -10.2, 0)), False)
sketch12.addGeometry(Part.ArcOfCircle(Part.Circle(Vector(0, 0, 0), Vector(0, 0, 1), 14), math.radians(128), math.radians(227)), False)
sketch12.addConstraint(Sketcher.Constraint("Coincident", 0, 2, 1, 1))
sketch12.addConstraint(Sketcher.Constraint("Coincident", 1, 2, 2, 1))
sketch12.addConstraint(Sketcher.Constraint("Coincident", 2, 2, 3, 1))
sketch12.addConstraint(Sketcher.Constraint("Coincident", 3, 2, 4, 1))
sketch12.addConstraint(Sketcher.Constraint("Coincident", 4, 2, 5, 2))
sketch12.addConstraint(Sketcher.Constraint("Coincident", 5, 1, 0, 1))
sketch12.addConstraint(Sketcher.Constraint("Coincident", 2, 3, -1, 1))
sketch12.addConstraint(Sketcher.Constraint("Coincident", 5, 3, -1, 1))
sketch12.addConstraint(Sketcher.Constraint("Distance", 0, 1.5))
sketch12.addConstraint(Sketcher.Constraint("Radius", 2, 11.993865))
sketch12.addConstraint(Sketcher.Constraint("Radius", 5, 13.996273))
sketch12.addConstraint(Sketcher.Constraint("DistanceX", 5, 1, 0, 2, 0.8811))
sketch12.addConstraint(Sketcher.Constraint("Distance", 1, 1.581139))
sketch12.addConstraint(Sketcher.Constraint("DistanceY", -1, 1, 0, 2, 9.771532))
sketch12.addConstraint(Sketcher.Constraint("DistanceX", 2, 2, -1, 1, 9.357538))
sketch12.addConstraint(Sketcher.Constraint("DistanceY", 4, 2, -1, 1, 10.202039))
sketch12.addConstraint(Sketcher.Constraint("DistanceX", 1, 2, 3, 2, 0.138119))
sketch12.addConstraint(Sketcher.Constraint("DistanceY", 3, 2, 1, 2, 17.529779))
sketch12.setExpression("Constraints[8]", "Params.sketch12_length")
pocket8 = body.newObject("PartDesign::Pocket", "Pocket007")
pocket8.Profile = sketch12
pocket8.setExpression("Length", "Params.pocket8_length")
pocket8.Reversed = True

doc.recompute()
